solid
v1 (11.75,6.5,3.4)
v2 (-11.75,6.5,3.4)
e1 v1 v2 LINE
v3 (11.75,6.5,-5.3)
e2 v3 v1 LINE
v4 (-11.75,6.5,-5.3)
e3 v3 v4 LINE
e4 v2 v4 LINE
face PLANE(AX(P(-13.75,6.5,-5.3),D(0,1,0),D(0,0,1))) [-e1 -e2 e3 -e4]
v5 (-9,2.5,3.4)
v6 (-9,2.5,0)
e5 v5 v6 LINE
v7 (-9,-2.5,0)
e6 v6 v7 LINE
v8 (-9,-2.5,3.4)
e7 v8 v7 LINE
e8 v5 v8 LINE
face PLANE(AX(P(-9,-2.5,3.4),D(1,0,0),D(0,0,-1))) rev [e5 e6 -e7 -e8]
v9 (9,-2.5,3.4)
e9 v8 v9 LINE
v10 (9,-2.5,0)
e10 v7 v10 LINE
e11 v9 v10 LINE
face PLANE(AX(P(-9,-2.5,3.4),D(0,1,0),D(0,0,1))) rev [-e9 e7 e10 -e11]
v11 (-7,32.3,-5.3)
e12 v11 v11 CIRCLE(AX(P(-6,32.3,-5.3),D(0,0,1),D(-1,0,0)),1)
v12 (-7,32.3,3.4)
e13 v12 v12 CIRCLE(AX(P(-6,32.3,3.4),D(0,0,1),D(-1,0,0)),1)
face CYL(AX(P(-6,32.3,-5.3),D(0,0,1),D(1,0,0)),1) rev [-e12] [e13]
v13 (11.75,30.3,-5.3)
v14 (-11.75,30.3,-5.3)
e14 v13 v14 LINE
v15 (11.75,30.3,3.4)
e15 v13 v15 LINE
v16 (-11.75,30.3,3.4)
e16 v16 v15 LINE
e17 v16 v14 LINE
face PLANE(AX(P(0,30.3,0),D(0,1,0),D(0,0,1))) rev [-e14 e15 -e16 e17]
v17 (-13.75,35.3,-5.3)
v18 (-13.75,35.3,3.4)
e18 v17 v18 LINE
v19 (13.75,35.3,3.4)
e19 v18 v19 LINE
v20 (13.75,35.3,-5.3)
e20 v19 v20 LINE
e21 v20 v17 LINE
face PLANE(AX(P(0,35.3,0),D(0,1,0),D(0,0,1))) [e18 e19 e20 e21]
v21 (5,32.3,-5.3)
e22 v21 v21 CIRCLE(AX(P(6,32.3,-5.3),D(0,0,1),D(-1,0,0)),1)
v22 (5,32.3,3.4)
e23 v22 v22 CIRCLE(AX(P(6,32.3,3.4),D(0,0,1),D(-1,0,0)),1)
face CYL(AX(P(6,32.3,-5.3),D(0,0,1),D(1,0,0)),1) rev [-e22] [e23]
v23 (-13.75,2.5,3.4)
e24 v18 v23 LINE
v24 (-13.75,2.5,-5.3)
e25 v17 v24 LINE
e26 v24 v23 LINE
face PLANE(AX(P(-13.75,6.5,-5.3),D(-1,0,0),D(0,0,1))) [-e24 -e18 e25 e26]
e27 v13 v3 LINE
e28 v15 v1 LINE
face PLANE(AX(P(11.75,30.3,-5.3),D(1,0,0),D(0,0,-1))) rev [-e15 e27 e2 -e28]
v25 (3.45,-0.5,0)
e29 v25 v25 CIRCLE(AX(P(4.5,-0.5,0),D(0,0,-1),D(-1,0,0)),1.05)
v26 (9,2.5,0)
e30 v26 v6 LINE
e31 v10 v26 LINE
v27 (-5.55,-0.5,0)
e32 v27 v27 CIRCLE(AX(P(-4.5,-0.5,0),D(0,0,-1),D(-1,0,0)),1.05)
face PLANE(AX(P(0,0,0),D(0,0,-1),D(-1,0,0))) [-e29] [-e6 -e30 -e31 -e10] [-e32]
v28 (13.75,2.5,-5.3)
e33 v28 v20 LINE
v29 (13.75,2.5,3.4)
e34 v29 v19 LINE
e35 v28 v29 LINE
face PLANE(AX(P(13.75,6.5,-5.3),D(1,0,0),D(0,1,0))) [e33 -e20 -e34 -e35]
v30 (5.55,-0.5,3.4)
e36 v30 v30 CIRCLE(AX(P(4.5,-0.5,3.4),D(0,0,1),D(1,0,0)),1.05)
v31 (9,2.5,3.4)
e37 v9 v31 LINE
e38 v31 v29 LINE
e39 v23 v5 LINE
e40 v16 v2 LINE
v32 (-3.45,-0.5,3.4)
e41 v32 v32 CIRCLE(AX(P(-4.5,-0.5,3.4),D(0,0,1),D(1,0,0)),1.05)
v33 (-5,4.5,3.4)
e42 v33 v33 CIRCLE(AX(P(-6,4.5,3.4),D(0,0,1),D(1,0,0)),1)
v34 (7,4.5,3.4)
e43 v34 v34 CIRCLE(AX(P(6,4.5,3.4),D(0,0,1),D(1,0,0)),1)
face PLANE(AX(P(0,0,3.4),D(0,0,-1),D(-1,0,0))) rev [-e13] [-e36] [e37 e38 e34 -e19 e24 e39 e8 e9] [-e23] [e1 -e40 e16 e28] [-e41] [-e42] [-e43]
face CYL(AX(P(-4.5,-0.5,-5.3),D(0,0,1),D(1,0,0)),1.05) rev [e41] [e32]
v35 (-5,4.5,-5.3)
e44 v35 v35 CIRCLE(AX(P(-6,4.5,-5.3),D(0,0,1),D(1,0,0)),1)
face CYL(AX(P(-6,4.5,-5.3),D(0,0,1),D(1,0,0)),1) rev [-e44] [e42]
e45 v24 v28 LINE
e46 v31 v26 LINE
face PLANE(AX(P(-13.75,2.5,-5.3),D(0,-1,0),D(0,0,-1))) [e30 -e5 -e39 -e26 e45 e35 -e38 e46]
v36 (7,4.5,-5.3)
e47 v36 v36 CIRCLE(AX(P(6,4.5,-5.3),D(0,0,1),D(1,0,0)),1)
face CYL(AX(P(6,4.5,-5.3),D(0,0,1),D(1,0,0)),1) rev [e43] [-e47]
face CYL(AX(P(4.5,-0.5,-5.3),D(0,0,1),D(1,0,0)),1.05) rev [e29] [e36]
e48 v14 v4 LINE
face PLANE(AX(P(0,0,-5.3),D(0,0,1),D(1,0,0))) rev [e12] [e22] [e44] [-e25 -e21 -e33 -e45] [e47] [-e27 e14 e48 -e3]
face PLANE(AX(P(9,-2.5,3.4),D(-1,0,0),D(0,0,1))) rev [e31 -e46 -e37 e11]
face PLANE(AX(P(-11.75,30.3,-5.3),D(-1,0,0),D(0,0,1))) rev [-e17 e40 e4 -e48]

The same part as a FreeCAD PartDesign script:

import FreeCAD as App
import Part
import Sketcher

V = App.Vector

doc = App.newDocument("Part")
params = doc.addObject("Spreadsheet::Sheet", "Params")
for row, (alias, value) in enumerate([
    ("sketch1_width", "18 mm"),
    ("sketch1_height", "5 mm"),
    ("pad1_length", "3.4 mm"),
    ("sketch2_height", "4 mm"),
    ("sketch2_width", "27.5 mm"),
    ("pad2_length", "8.7 mm"),
    ("sketch3_width", "2 mm"),
    ("sketch3_height", "8.7 mm"),
    ("pad3_length", "23.8 mm"),
    ("sketch4_width", "27.5 mm"),
    ("sketch4_height", "8.7 mm"),
    ("pad4_length", "5 mm"),
    ("sketch5_diameter", "2 mm"),
    ("sketch5_diameter2", "2.1 mm"),
], start=1):
    params.set(f"A{row}", alias)
    params.set(f"B{row}", "=" + value)
    params.setAlias(f"B{row}", alias)

body = doc.addObject("PartDesign::Body", "Body")

# Sketch on XY plane
sketch1 = body.newObject("Sketcher::SketchObject", "Sketch")
sketch1.AttachmentSupport = (doc.getObject("XY_Plane"), [""])
sketch1.MapMode = "FlatFace"
sketch1.addGeometry([
    Part.LineSegment(V(-9, 2.5, 0), V(-9, -2.5, 0)),
    Part.LineSegment(V(-9, -2.5, 0), V(9, -2.5, 0)),
    Part.LineSegment(V(9, -2.5, 0), V(9, 2.5, 0)),
    Part.LineSegment(V(9, 2.5, 0), V(-9, 2.5, 0)),
], False)
sketch1.addConstraint([
    Sketcher.Constraint("Coincident", 0, 2, 1, 1),
    Sketcher.Constraint("Coincident", 1, 2, 2, 1),
    Sketcher.Constraint("Coincident", 2, 2, 3, 1),
    Sketcher.Constraint("Coincident", 3, 2, 0, 1),
    Sketcher.Constraint("Vertical", 0),
    Sketcher.Constraint("Horizontal", 1),
    Sketcher.Constraint("Vertical", 2),
    Sketcher.Constraint("Horizontal", 3),
    Sketcher.Constraint("Symmetric", 0, 2, 2, 2, -1, 1),
    Sketcher.Constraint("DistanceX", 1, 1, 1, 2, 18.0),
    Sketcher.Constraint("DistanceY", 0, 2, 0, 1, 5.0),
])
sketch1.setExpression("Constraints[9]", "Params.sketch1_width")
sketch1.setExpression("Constraints[10]", "Params.sketch1_height")
pad1 = body.newObject("PartDesign::Pad", "Pad")
pad1.Profile = sketch1
pad1.setExpression("Length", "Params.pad1_length")

# Sketch on XY plane
sketch2 = body.newObject("Sketcher::SketchObject", "Sketch001")
sketch2.AttachmentSupport = (doc.getObject("XY_Plane"), [""])
sketch2.MapMode = "FlatFace"
sketch2.AttachmentOffset = App.Placement(V(0, 0, 3.4), App.Rotation())
sketch2.addGeometry([
    Part.LineSegment(V(-13.75, 6.5, 0), V(-13.75, 2.5, 0)),
    Part.LineSegment(V(-13.75, 2.5, 0), V(13.75, 2.5, 0)),
    Part.LineSegment(V(13.75, 2.5, 0), V(13.75, 6.5, 0)),
    Part.LineSegment(V(13.75, 6.5, 0), V(-13.75, 6.5, 0)),
], False)
sketch2.addConstraint([
    Sketcher.Constraint("Coincident", 0, 2, 1, 1),
    Sketcher.Constraint("Coincident", 1, 2, 2, 1),
    Sketcher.Constraint("Coincident", 2, 2, 3, 1),
    Sketcher.Constraint("Coincident", 3, 2, 0, 1),
    Sketcher.Constraint("Vertical", 0),
    Sketcher.Constraint("Horizontal", 1),
    Sketcher.Constraint("Vertical", 2),
    Sketcher.Constraint("Horizontal", 3),
    Sketcher.Constraint("DistanceY", 0, 2, 0, 1, 4.0),
    Sketcher.Constraint("DistanceX", 1, 1, 1, 2, 27.5),
    Sketcher.Constraint("DistanceY", -1, 1, 0, 2, 2.5),
    Sketcher.Constraint("DistanceX", 0, 2, -1, 1, 13.75),
])
sketch2.setExpression("Constraints[8]", "Params.sketch2_height")
sketch2.setExpression("Constraints[9]", "Params.sketch2_width")
pad2 = body.newObject("PartDesign::Pad", "Pad001")
pad2.Profile = sketch2
pad2.setExpression("Length", "Params.pad2_length")
pad2.Reversed = True

# Sketch on XZ plane
sketch3 = body.newObject("Sketcher::SketchObject", "Sketch002")
sketch3.AttachmentSupport = (doc.getObject("XZ_Plane"), [""])
sketch3.MapMode = "FlatFace"
sketch3.AttachmentOffset = App.Placement(V(0, 0, -6.5), App.Rotation())
sketch3.addGeometry([
    Part.LineSegment(V(-13.75, -5.3, 0), V(-13.75, 3.4, 0)),  # 0
    Part.LineSegment(V(-13.75, 3.4, 0), V(-11.75, 3.4, 0)),  # 1
    Part.LineSegment(V(-11.75, 3.4, 0), V(-11.75, -5.3, 0)),  # 2
    Part.LineSegment(V(-11.75, -5.3, 0), V(-13.75, -5.3, 0)),  # 3
    Part.LineSegment(V(11.75, -5.3, 0), V(11.75, 3.4, 0)),  # 4
    Part.LineSegment(V(11.75, 3.4, 0), V(13.75, 3.4, 0)),  # 5
    Part.LineSegment(V(13.75, 3.4, 0), V(13.75, -5.3, 0)),  # 6
    Part.LineSegment(V(13.75, -5.3, 0), V(11.75, -5.3, 0)),  # 7
], False)
sketch3.addConstraint([
    Sketcher.Constraint("Coincident", 0, 2, 1, 1),
    Sketcher.Constraint("Coincident", 1, 2, 2, 1),
    Sketcher.Constraint("Coincident", 2, 2, 3, 1),
    Sketcher.Constraint("Coincident", 3, 2, 0, 1),
    Sketcher.Constraint("Coincident", 4, 2, 5, 1),
    Sketcher.Constraint("Coincident", 5, 2, 6, 1),
    Sketcher.Constraint("Coincident", 6, 2, 7, 1),
    Sketcher.Constraint("Coincident", 7, 2, 4, 1),
    Sketcher.Constraint("Vertical", 0),
    Sketcher.Constraint("Horizontal", 1),
    Sketcher.Constraint("Vertical", 2),
    Sketcher.Constraint("Horizontal", 3),
    Sketcher.Constraint("Vertical", 4),
    Sketcher.Constraint("Horizontal", 5),
    Sketcher.Constraint("Vertical", 6),
    Sketcher.Constraint("Horizontal", 7),
    Sketcher.Constraint("Symmetric", 1, 2, 4, 2, -2),
    Sketcher.Constraint("Symmetric", 3, 2, 6, 2, -2),
    Sketcher.Constraint("DistanceX", 1, 1, 1, 2, 2.0),
    Sketcher.Constraint("DistanceY", 0, 1, 0, 2, 8.7),
    Sketcher.Constraint("DistanceY", -1, 1, 0, 2, 3.4),
    Sketcher.Constraint("DistanceX", 1, 2, 4, 2, 23.5),
])
sketch3.setExpression("Constraints[18]", "Params.sketch3_width")
sketch3.setExpression("Constraints[19]", "Params.sketch3_height")
pad3 = body.newObject("PartDesign::Pad", "Pad002")
pad3.Profile = sketch3
pad3.setExpression("Length", "Params.pad3_length")
pad3.Reversed = True

# Sketch on XZ plane
sketch4 = body.newObject("Sketcher::SketchObject", "Sketch003")
sketch4.AttachmentSupport = (doc.getObject("XZ_Plane"), [""])
sketch4.MapMode = "FlatFace"
sketch4.AttachmentOffset = App.Placement(V(0, 0, -30.3), App.Rotation())
sketch4.addGeometry([
    Part.LineSegment(V(-13.75, -5.3, 0), V(-13.75, 3.4, 0)),
    Part.LineSegment(V(-13.75, 3.4, 0), V(13.75, 3.4, 0)),
    Part.LineSegment(V(13.75, 3.4, 0), V(13.75, -5.3, 0)),
    Part.LineSegment(V(13.75, -5.3, 0), V(-13.75, -5.3, 0)),
], False)
sketch4.addConstraint([
    Sketcher.Constraint("Coincident", 0, 2, 1, 1),
    Sketcher.Constraint("Coincident", 1, 2, 2, 1),
    Sketcher.Constraint("Coincident", 2, 2, 3, 1),
    Sketcher.Constraint("Coincident", 3, 2, 0, 1),
    Sketcher.Constraint("Vertical", 0),
    Sketcher.Constraint("Horizontal", 1),
    Sketcher.Constraint("Vertical", 2),
    Sketcher.Constraint("Horizontal", 3),
    Sketcher.Constraint("DistanceX", 1, 1, 1, 2, 27.5),
    Sketcher.Constraint("DistanceY", 0, 1, 0, 2, 8.7),
    Sketcher.Constraint("DistanceY", -1, 1, 0, 2, 3.4),
    Sketcher.Constraint("DistanceX", 0, 2, -1, 1, 13.75),
])
sketch4.setExpression("Constraints[8]", "Params.sketch4_width")
sketch4.setExpression("Constraints[9]", "Params.sketch4_height")
pad4 = body.newObject("PartDesign::Pad", "Pad003")
pad4.Profile = sketch4
pad4.setExpression("Length", "Params.pad4_length")
pad4.Reversed = True

# Sketch on XY plane
sketch5 = body.newObject("Sketcher::SketchObject", "Sketch004")
sketch5.AttachmentSupport = (doc.getObject("XY_Plane"), [""])
sketch5.MapMode = "FlatFace"
sketch5.AttachmentOffset = App.Placement(V(0, 0, 3.4), App.Rotation())
sketch5.addGeometry([
    Part.Circle(V(-4.5, -0.5, 0), V(0, 0, 1), 1.05),  # 0
    Part.Circle(V(4.5, -0.5, 0), V(0, 0, 1), 1.05),  # 1
    Part.Circle(V(-6, 4.5, 0), V(0, 0, 1), 1),  # 2
    Part.Circle(V(6, 4.5, 0), V(0, 0, 1), 1),  # 3
    Part.Circle(V(6, 32.3, 0), V(0, 0, 1), 1),  # 4
    Part.Circle(V(-6, 32.3, 0), V(0, 0, 1), 1),  # 5
], False)
sketch5.addConstraint([
    Sketcher.Constraint("Equal", 0, 1),
    Sketcher.Constraint("Equal", 2, 3),
    Sketcher.Constraint("Equal", 3, 4),
    Sketcher.Constraint("Equal", 4, 5),
    Sketcher.Constraint("Symmetric", 0, 3, 1, 3, -2),
    Sketcher.Constraint("Symmetric", 2, 3, 3, 3, -2),
    Sketcher.Constraint("Symmetric", 4, 3, 5, 3, -2),
    Sketcher.Constraint("Vertical", 3, 3, 4, 3),
    Sketcher.Constraint("Diameter", 2, 2.0),
    Sketcher.Constraint("Diameter", 0, 2.1),
    Sketcher.Constraint("DistanceX", 2, 3, -1, 1, 6.0),
    Sketcher.Constraint("DistanceX", 0, 3, 1, 3, 9.0),
    Sketcher.Constraint("DistanceY", 0, 3, 2, 3, 5.0),
    Sketcher.Constraint("DistanceY", 0, 3, -1, 1, 0.5),
    Sketcher.Constraint("DistanceY", -1, 1, 4, 3, 32.3),
])
sketch5.setExpression("Constraints[8]", "Params.sketch5_diameter")
sketch5.setExpression("Constraints[9]", "Params.sketch5_diameter2")
pocket1 = body.newObject("PartDesign::Pocket", "Pocket")
pocket1.Profile = sketch5
pocket1.Type = "ThroughAll"

doc.recompute()
